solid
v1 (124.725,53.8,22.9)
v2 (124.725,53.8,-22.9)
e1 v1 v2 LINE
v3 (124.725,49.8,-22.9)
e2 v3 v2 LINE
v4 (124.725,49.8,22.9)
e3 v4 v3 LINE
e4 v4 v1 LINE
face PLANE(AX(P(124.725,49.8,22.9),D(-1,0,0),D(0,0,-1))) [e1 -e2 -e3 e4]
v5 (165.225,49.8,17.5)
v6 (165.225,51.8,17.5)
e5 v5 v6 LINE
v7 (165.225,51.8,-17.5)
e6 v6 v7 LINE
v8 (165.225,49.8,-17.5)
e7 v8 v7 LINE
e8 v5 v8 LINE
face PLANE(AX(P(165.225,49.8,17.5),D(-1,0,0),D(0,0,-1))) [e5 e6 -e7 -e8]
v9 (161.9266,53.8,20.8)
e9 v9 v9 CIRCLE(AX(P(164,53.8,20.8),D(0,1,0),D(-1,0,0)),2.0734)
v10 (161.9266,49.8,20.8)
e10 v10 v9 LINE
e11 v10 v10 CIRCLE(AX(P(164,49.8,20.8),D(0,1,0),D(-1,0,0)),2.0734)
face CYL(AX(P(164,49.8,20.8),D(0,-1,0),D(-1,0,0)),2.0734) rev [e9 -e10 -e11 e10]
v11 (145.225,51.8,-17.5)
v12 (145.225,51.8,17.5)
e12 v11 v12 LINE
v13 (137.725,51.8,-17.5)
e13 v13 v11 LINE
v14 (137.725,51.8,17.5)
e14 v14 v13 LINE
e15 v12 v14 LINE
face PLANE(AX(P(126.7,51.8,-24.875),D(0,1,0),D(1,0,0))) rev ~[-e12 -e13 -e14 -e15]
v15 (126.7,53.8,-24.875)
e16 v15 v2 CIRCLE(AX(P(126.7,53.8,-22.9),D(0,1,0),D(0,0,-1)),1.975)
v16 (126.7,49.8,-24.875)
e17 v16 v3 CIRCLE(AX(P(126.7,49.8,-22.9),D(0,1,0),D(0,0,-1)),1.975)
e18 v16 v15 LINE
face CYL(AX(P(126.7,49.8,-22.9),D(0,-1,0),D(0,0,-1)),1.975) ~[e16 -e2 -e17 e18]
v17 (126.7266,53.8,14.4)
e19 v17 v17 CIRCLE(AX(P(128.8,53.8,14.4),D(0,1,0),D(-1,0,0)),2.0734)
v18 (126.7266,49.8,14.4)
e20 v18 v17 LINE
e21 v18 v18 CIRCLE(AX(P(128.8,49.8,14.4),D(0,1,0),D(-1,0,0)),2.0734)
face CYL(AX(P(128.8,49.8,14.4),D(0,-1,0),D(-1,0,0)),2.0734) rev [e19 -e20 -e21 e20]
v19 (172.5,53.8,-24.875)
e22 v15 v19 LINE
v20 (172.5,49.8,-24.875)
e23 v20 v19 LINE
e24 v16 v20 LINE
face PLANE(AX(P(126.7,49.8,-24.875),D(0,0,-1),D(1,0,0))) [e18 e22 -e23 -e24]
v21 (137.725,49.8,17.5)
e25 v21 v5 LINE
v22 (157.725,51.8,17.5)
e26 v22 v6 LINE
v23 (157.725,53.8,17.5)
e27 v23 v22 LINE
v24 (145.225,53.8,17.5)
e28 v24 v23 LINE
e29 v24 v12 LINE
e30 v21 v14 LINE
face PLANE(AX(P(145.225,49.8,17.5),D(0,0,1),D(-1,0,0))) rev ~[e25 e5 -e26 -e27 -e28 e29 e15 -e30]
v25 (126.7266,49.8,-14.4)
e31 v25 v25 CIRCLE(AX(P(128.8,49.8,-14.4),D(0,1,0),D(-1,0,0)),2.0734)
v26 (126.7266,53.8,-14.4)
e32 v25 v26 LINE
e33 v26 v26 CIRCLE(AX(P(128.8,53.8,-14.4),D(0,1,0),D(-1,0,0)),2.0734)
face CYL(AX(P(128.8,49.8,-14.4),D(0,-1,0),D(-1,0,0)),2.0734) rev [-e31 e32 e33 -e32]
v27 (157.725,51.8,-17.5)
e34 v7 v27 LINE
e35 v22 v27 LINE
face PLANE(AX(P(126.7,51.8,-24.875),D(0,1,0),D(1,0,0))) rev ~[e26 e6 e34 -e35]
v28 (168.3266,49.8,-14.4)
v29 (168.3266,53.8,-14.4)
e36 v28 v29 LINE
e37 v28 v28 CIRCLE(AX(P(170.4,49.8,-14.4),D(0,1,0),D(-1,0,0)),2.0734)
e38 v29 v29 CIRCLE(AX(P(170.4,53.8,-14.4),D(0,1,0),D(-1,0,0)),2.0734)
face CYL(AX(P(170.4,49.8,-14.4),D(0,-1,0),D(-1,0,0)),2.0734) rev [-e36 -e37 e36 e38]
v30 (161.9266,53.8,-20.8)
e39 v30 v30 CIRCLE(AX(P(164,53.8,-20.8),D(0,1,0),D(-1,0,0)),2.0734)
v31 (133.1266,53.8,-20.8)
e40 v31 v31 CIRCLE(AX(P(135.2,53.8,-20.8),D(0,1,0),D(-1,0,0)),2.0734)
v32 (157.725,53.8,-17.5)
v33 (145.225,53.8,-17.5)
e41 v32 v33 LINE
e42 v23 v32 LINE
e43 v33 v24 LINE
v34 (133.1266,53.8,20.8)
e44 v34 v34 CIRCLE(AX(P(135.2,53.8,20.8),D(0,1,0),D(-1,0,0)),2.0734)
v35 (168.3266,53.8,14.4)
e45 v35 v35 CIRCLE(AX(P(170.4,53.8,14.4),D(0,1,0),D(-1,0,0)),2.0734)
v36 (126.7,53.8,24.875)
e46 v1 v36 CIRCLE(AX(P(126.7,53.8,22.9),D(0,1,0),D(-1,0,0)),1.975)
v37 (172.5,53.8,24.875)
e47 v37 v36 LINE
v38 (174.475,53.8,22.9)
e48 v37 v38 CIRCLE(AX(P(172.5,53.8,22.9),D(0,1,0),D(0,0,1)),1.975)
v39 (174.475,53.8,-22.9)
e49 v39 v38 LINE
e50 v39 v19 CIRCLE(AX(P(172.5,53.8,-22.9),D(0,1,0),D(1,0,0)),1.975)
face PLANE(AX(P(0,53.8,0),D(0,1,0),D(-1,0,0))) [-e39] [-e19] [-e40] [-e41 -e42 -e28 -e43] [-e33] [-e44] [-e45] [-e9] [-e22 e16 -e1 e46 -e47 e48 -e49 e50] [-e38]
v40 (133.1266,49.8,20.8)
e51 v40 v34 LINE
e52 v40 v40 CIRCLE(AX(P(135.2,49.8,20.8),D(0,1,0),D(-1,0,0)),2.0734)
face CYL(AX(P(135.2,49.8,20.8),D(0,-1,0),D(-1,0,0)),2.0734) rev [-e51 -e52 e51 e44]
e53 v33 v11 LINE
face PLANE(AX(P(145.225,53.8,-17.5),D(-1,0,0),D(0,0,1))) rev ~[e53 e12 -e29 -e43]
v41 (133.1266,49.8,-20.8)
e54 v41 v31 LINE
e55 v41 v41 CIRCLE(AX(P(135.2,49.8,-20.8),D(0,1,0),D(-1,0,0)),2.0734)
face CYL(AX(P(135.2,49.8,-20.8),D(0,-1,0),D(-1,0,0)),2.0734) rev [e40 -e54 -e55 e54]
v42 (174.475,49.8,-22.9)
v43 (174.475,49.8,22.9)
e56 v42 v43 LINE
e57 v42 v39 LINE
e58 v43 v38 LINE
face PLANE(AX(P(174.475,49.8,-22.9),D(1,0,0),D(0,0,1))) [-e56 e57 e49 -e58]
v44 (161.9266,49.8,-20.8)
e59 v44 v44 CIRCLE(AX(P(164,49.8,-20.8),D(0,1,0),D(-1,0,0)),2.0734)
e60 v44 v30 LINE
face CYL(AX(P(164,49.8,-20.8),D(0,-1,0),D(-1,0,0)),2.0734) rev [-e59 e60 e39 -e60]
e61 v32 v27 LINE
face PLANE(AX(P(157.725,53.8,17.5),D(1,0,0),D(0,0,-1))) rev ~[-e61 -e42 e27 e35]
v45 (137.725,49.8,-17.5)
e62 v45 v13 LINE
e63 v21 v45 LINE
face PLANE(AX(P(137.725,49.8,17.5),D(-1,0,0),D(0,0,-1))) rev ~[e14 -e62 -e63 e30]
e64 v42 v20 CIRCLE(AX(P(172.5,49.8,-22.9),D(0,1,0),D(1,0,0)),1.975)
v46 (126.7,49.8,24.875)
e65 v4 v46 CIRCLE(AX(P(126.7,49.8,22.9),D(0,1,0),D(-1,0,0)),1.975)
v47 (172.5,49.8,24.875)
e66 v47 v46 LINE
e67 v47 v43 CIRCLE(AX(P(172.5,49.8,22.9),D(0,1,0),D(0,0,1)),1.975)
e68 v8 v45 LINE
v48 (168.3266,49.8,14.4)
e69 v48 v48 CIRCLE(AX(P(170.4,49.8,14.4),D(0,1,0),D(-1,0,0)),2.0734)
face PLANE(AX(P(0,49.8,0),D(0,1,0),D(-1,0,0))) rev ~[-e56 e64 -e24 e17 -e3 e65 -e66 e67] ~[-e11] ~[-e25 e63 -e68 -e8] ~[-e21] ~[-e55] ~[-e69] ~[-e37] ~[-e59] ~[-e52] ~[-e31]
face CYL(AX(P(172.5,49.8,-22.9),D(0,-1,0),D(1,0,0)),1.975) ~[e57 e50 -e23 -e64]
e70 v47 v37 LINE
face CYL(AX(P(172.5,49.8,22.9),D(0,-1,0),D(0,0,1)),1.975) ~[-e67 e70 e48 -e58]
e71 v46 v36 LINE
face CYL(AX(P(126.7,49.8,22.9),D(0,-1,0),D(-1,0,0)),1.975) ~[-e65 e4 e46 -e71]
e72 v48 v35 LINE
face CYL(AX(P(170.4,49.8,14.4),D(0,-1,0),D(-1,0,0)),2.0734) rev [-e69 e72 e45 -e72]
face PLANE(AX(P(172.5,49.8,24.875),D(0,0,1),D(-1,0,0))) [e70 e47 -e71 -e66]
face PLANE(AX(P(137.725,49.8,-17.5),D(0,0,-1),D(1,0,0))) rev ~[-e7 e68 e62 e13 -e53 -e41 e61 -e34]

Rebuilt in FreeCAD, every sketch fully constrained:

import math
import FreeCAD as App
import Part
import Sketcher
from FreeCAD import Vector


def add_polygon(sketch, points):
    """Adds a closed chain of lines whose ends are joined by coincident constraints."""
    first, n = sketch.GeometryCount, len(points)
    for a, b in zip(points, points[1:] + points[:1]):
        sketch.addGeometry(Part.LineSegment(App.Vector(*a, 0), App.Vector(*b, 0)), False)
    for i in range(n):
        sketch.addConstraint(Sketcher.Constraint("Coincident", first + i, 2, first + (i + 1) % n, 1))

doc = App.newDocument("Part")
body = doc.addObject("PartDesign::Body", "Body")

sketch1 = body.newObject("Sketcher::SketchObject", "Sketch")
sketch1.AttachmentSupport = (doc.getObject("XZ_Plane"), [""])
sketch1.MapMode = "FlatFace"
sketch1.AttachmentOffset = App.Placement(Vector(0, 0, -49.8), App.Rotation())
sketch1.addGeometry(Part.LineSegment(Vector(126.7, 24.9, 0), Vector(172.5, 24.9, 0)), False)
sketch1.addGeometry(Part.ArcOfCircle(Part.Circle(Vector(172.5, 22.9, 0), Vector(0, 0, 1), 2), math.radians(0), math.radians(90)), False)
sketch1.addGeometry(Part.LineSegment(Vector(174.5, 22.9, 0), Vector(174.5, -22.9, 0)), False)
sketch1.addGeometry(Part.ArcOfCircle(Part.Circle(Vector(172.5, -22.9, 0), Vector(0, 0, 1), 2), math.radians(-90), math.radians(0)), False)
sketch1.addGeometry(Part.LineSegment(Vector(172.5, -24.9, 0), Vector(126.7, -24.9, 0)), False)
sketch1.addGeometry(Part.ArcOfCircle(Part.Circle(Vector(126.7, -22.9, 0), Vector(0, 0, 1), 2), math.radians(180), math.radians(270)), False)
sketch1.addGeometry(Part.LineSegment(Vector(124.7, -22.9, 0), Vector(124.7, 22.9, 0)), False)
sketch1.addGeometry(Part.ArcOfCircle(Part.Circle(Vector(126.7, 22.9, 0), Vector(0, 0, 1), 2), math.radians(90), math.radians(180)), False)
sketch1.addGeometry(Part.Circle(Vector(164, -20.8, 0), Vector(0, 0, 1), 2.1), False)
sketch1.addGeometry(Part.Circle(Vector(170.4, -14.4, 0), Vector(0, 0, 1), 2.1), False)
add_polygon(sketch1, [(147.7, -15), (155.2, -15), (155.2, 15), (147.7, 15)])
sketch1.addGeometry(Part.Circle(Vector(135.2, -20.8, 0), Vector(0, 0, 1), 2.1), False)
sketch1.addGeometry(Part.Circle(Vector(128.8, -14.4, 0), Vector(0, 0, 1), 2.1), False)
sketch1.addGeometry(Part.Circle(Vector(170.4, 14.4, 0), Vector(0, 0, 1), 2.1), False)
sketch1.addGeometry(Part.Circle(Vector(164, 20.8, 0), Vector(0, 0, 1), 2.1), False)
sketch1.addGeometry(Part.Circle(Vector(128.8, 14.4, 0), Vector(0, 0, 1), 2.1), False)
sketch1.addGeometry(Part.Circle(Vector(135.2, 20.8, 0), Vector(0, 0, 1), 2.1), False)
sketch1.addConstraint(Sketcher.Constraint("Tangent", 0, 2, 1, 2))
sketch1.addConstraint(Sketcher.Constraint("Tangent", 1, 1, 2, 1))
sketch1.addConstraint(Sketcher.Constraint("Tangent", 2, 2, 3, 2))
sketch1.addConstraint(Sketcher.Constraint("Tangent", 3, 1, 4, 1))
sketch1.addConstraint(Sketcher.Constraint("Tangent", 4, 2, 5, 2))
sketch1.addConstraint(Sketcher.Constraint("Tangent", 5, 1, 6, 1))
sketch1.addConstraint(Sketcher.Constraint("Tangent", 6, 2, 7, 2))
sketch1.addConstraint(Sketcher.Constraint("Tangent", 7, 1, 0, 1))
sketch1.addConstraint(Sketcher.Constraint("Horizontal", 0))
sketch1.addConstraint(Sketcher.Constraint("Vertical", 2))
sketch1.addConstraint(Sketcher.Constraint("Horizontal", 4))
sketch1.addConstraint(Sketcher.Constraint("Vertical", 6))
sketch1.addConstraint(Sketcher.Constraint("Horizontal", 10))
sketch1.addConstraint(Sketcher.Constraint("Vertical", 11))
sketch1.addConstraint(Sketcher.Constraint("Horizontal", 12))
sketch1.addConstraint(Sketcher.Constraint("Vertical", 13))
sketch1.addConstraint(Sketcher.Constraint("Equal", 1, 3))
sketch1.addConstraint(Sketcher.Constraint("Equal", 3, 5))
sketch1.addConstraint(Sketcher.Constraint("Equal", 5, 7))
sketch1.addConstraint(Sketcher.Constraint("Equal", 8, 9))
sketch1.addConstraint(Sketcher.Constraint("Equal", 9, 14))
sketch1.addConstraint(Sketcher.Constraint("Equal", 14, 15))
sketch1.addConstraint(Sketcher.Constraint("Equal", 15, 16))
sketch1.addConstraint(Sketcher.Constraint("Equal", 16, 17))
sketch1.addConstraint(Sketcher.Constraint("Equal", 17, 18))
sketch1.addConstraint(Sketcher.Constraint("Equal", 18, 19))
sketch1.addConstraint(Sketcher.Constraint("Symmetric", 9, 3, 16, 3, -1))
sketch1.addConstraint(Sketcher.Constraint("Symmetric", 8, 3, 17, 3, -1))
sketch1.addConstraint(Sketcher.Constraint("Symmetric", 15, 3, 18, 3, -1))
sketch1.addConstraint(Sketcher.Constraint("Symmetric", 14, 3, 19, 3, -1))
sketch1.addConstraint(Sketcher.Constraint("Horizontal", 8, 3, 14, 3))
sketch1.addConstraint(Sketcher.Constraint("Horizontal", 9, 3, 15, 3))
sketch1.addConstraint(Sketcher.Constraint("Equal", 4, 2))
sketch1.addConstraint(Sketcher.Constraint("DistanceY", 11, 1, 11, 2, 30.0))
sketch1.addConstraint(Sketcher.Constraint("DistanceX", 0, 1, 0, 2, 45.8))
sketch1.addConstraint(Sketcher.Constraint("DistanceX", 10, 1, 10, 2, 7.5))
sketch1.addConstraint(Sketcher.Constraint("DistanceX", -1, 1, 8, 3, 164.0))
sketch1.addConstraint(Sketcher.Constraint("DistanceY", 10, 2, -1, 1, 15.0))
sketch1.addConstraint(Sketcher.Constraint("Radius", 1, 1.975))
sketch1.addConstraint(Sketcher.Constraint("Diameter", 8, 4.1468))
sketch1.addConstraint(Sketcher.Constraint("DistanceX", -1, 1, 1, 3, 172.5))
sketch1.addConstraint(Sketcher.Constraint("DistanceY", -1, 1, 1, 3, 22.9))
sketch1.addConstraint(Sketcher.Constraint("DistanceY", 8, 3, -1, 1, 20.8))
sketch1.addConstraint(Sketcher.Constraint("DistanceX", -1, 1, 9, 3, 170.4))
sketch1.addConstraint(Sketcher.Constraint("DistanceY", 9, 3, -1, 1, 14.4))
sketch1.addConstraint(Sketcher.Constraint("DistanceX", -1, 1, 14, 3, 135.2))
sketch1.addConstraint(Sketcher.Constraint("DistanceX", -1, 1, 15, 3, 128.8))
sketch1.addConstraint(Sketcher.Constraint("DistanceX", 10, 2, 2, 2, 19.25))
pad1 = body.newObject("PartDesign::Pad", "Pad")
pad1.Profile = sketch1
pad1.Length = 4
pad1.Reversed = True

sketch2 = body.newObject("Sketcher::SketchObject", "Sketch001")
sketch2.AttachmentSupport = (doc.getObject("XZ_Plane"), [""])
sketch2.MapMode = "FlatFace"
sketch2.AttachmentOffset = App.Placement(Vector(0, 0, -53.8), App.Rotation())
add_polygon(sketch2, [(145, -18), (145, 18), (158, 18), (158, -18)])
add_polygon(sketch2, [(148, -15), (155, -15), (155, 15), (148, 15)])
sketch2.addConstraint(Sketcher.Constraint("Vertical", 0))
sketch2.addConstraint(Sketcher.Constraint("Horizontal", 1))
sketch2.addConstraint(Sketcher.Constraint("Vertical", 2))
sketch2.addConstraint(Sketcher.Constraint("Horizontal", 3))
sketch2.addConstraint(Sketcher.Constraint("Horizontal", 4))
sketch2.addConstraint(Sketcher.Constraint("Vertical", 5))
sketch2.addConstraint(Sketcher.Constraint("Horizontal", 6))
sketch2.addConstraint(Sketcher.Constraint("Vertical", 7))
sketch2.addConstraint(Sketcher.Constraint("DistanceX", 4, 1, 4, 2, 7.5))
sketch2.addConstraint(Sketcher.Constraint("DistanceX", 4, 2, 2, 2, 2.5))
sketch2.addConstraint(Sketcher.Constraint("DistanceY", 2, 2, 4, 2, 2.5))
sketch2.addConstraint(Sketcher.Constraint("DistanceY", 5, 2, 1, 2, 2.5))
sketch2.addConstraint(Sketcher.Constraint("DistanceX", 0, 2, 6, 2, 2.5))
sketch2.addConstraint(Sketcher.Constraint("DistanceY", 0, 1, 0, 2, 35.0))
sketch2.addConstraint(Sketcher.Constraint("DistanceY", 4, 2, -1, 1, 15.0))
sketch2.addConstraint(Sketcher.Constraint("DistanceX", -1, 1, 0, 2, 145.225))
pocket1 = body.newObject("PartDesign::Pocket", "Pocket")
pocket1.Profile = sketch2
pocket1.Length = 4
pocket1.Reversed = True

sketch3 = body.newObject("Sketcher::SketchObject", "Sketch002")
sketch3.AttachmentSupport = (doc.getObject("XZ_Plane"), [""])
sketch3.MapMode = "FlatFace"
sketch3.AttachmentOffset = App.Placement(Vector(0, 0, -49.8), App.Rotation())
add_polygon(sketch3, [(138, 18), (145, 18), (145, -18), (138, -18)])
add_polygon(sketch3, [(158, -18), (158, 18), (165, 18), (165, -18)])
sketch3.addConstraint(Sketcher.Constraint("Horizontal", 0))
sketch3.addConstraint(Sketcher.Constraint("Vertical", 1))
sketch3.addConstraint(Sketcher.Constraint("Horizontal", 2))
sketch3.addConstraint(Sketcher.Constraint("Vertical", 3))
sketch3.addConstraint(Sketcher.Constraint("Vertical", 4))
sketch3.addConstraint(Sketcher.Constraint("Horizontal", 5))
sketch3.addConstraint(Sketcher.Constraint("Vertical", 6))
sketch3.addConstraint(Sketcher.Constraint("Horizontal", 7))
sketch3.addConstraint(Sketcher.Constraint("Horizontal", 3, 2, 4, 2))
sketch3.addConstraint(Sketcher.Constraint("Horizontal", 2, 2, 6, 2))
sketch3.addConstraint(Sketcher.Constraint("Equal", 2, 5))
sketch3.addConstraint(Sketcher.Constraint("DistanceX", 0, 1, 0, 2, 7.5))
sketch3.addConstraint(Sketcher.Constraint("DistanceY", 1, 2, 1, 1, 35.0))
sketch3.addConstraint(Sketcher.Constraint("DistanceX", 3, 2, 4, 2, 20.0))
sketch3.addConstraint(Sketcher.Constraint("DistanceY", -1, 1, 0, 2, 17.5))
sketch3.addConstraint(Sketcher.Constraint("DistanceX", -1, 1, 0, 2, 145.225))
pocket2 = body.newObject("PartDesign::Pocket", "Pocket001")
pocket2.Profile = sketch3
pocket2.Length = 2

doc.recompute()
